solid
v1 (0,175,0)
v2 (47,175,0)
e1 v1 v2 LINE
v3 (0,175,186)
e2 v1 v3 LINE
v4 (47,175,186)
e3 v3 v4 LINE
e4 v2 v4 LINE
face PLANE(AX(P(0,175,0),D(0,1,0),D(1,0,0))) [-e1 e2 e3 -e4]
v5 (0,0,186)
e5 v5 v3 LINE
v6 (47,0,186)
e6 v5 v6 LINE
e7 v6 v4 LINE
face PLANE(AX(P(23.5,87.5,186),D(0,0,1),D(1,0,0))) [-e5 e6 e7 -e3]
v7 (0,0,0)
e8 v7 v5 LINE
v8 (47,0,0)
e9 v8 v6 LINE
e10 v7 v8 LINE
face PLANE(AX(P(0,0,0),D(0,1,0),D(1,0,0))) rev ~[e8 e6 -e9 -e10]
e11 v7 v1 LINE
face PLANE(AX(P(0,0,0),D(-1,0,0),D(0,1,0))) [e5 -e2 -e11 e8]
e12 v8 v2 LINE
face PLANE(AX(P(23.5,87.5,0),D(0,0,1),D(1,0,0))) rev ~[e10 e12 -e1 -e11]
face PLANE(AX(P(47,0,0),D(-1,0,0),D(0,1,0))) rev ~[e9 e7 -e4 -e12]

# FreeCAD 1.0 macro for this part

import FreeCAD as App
import Part
import Sketcher

V = App.Vector
Q = App.Units.Quantity

doc = App.newDocument("Part")
body = doc.addObject("PartDesign::Body", "Body")

sketch1 = doc.addObject("Sketcher::SketchObject", "Sketch")
body.addObject(sketch1)
sketch1.AttachmentSupport = (doc.XY_Plane, [""])
sketch1.MapMode = "FlatFace"
sketch1.addGeometry(Part.LineSegment(V(0, 175, 0), V(0, 0, 0)), False)
sketch1.addGeometry(Part.LineSegment(V(0, 0, 0), V(47, 0, 0)), False)
sketch1.addGeometry(Part.LineSegment(V(47, 0, 0), V(47, 175, 0)), False)
sketch1.addGeometry(Part.LineSegment(V(47, 175, 0), V(0, 175, 0)), False)
sketch1.addConstraint(Sketcher.Constraint("Coincident", 0, 2, 1, 1))
sketch1.addConstraint(Sketcher.Constraint("Coincident", 1, 2, 2, 1))
sketch1.addConstraint(Sketcher.Constraint("Coincident", 2, 2, 3, 1))
sketch1.addConstraint(Sketcher.Constraint("Coincident", 3, 2, 0, 1))
sketch1.addConstraint(Sketcher.Constraint("Vertical", 0))
sketch1.addConstraint(Sketcher.Constraint("Horizontal", 1))
sketch1.addConstraint(Sketcher.Constraint("Vertical", 2))
sketch1.addConstraint(Sketcher.Constraint("Horizontal", 3))
sketch1.addConstraint(Sketcher.Constraint("Coincident", 0, 2, -1, 1))
sketch1.addConstraint(Sketcher.Constraint("DistanceX", 1, 1, 1, 2, Q("47 mm")))
sketch1.addConstraint(Sketcher.Constraint("DistanceY", 0, 2, 0, 1, Q("175 mm")))
pad1 = doc.addObject("PartDesign::Pad", "Pad")
body.addObject(pad1)
pad1.Profile = sketch1
pad1.Length = 186

doc.recompute()
